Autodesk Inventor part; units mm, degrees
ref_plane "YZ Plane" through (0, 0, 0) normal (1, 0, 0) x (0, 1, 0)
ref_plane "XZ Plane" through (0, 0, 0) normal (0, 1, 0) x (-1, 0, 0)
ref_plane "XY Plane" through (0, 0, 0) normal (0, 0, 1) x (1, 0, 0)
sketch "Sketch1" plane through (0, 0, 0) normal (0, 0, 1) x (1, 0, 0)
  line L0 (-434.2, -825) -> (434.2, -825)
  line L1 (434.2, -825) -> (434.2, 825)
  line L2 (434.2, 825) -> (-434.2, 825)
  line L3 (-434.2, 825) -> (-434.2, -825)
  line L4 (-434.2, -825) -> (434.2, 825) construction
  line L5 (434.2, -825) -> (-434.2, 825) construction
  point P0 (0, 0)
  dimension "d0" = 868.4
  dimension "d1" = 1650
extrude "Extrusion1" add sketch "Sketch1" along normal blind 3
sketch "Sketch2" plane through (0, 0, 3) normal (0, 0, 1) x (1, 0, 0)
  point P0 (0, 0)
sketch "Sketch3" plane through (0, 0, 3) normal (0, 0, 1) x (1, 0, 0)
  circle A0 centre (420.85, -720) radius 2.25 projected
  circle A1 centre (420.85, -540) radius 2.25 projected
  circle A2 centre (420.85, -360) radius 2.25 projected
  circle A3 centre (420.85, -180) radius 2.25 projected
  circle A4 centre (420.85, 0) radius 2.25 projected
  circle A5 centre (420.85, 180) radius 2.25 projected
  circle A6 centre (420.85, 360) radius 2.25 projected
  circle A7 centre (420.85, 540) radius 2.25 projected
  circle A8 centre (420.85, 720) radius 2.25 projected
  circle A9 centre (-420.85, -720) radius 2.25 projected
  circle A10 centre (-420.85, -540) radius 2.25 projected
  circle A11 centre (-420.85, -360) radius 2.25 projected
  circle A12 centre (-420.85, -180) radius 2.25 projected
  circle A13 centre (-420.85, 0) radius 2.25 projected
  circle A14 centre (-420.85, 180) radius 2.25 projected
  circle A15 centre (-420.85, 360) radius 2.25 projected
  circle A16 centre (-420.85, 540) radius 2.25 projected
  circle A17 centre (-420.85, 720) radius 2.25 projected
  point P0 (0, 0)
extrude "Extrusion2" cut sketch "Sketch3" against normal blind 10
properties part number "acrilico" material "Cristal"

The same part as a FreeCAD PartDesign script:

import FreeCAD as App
import Part
import Sketcher
from FreeCAD import Vector


def add_polygon(sketch, points):
    """Adds a closed chain of lines whose ends are joined by coincident constraints."""
    first, n = sketch.GeometryCount, len(points)
    for a, b in zip(points, points[1:] + points[:1]):
        sketch.addGeometry(Part.LineSegment(App.Vector(*a, 0), App.Vector(*b, 0)), False)
    for i in range(n):
        sketch.addConstraint(Sketcher.Constraint("Coincident", first + i, 2, first + (i + 1) % n, 1))

doc = App.newDocument("Part")
body = doc.addObject("PartDesign::Body", "Body")

# Sketch on XY plane
sketch1 = doc.addObject("Sketcher::SketchObject", "Sketch")
body.addObject(sketch1)
sketch1.AttachmentSupport = (doc.XY_Plane, [""])
sketch1.MapMode = "FlatFace"
add_polygon(sketch1, [(-434, 825), (-434, -825), (434, -825), (434, 825)])  # lines 0-3
sketch1.addConstraint([
    Sketcher.Constraint("Vertical", 0),
    Sketcher.Constraint("Horizontal", 1),
    Sketcher.Constraint("Vertical", 2),
    Sketcher.Constraint("Horizontal", 3),
    Sketcher.Constraint("Symmetric", 0, 2, 2, 2, -1, 1),
    Sketcher.Constraint("DistanceY", 0, 2, 0, 1, 1650.0),
    Sketcher.Constraint("DistanceX", 1, 1, 1, 2, 868.4),
])
pad1 = doc.addObject("PartDesign::Pad", "Pad")
body.addObject(pad1)
pad1.Profile = sketch1
pad1.Length = 3

# Sketch on XY plane
sketch2 = doc.addObject("Sketcher::SketchObject", "Sketch001")
body.addObject(sketch2)
sketch2.AttachmentSupport = (doc.XY_Plane, [""])
sketch2.MapMode = "FlatFace"
sketch2.AttachmentOffset = App.Placement(Vector(0, 0, 3), App.Rotation())
sketch2.addGeometry([
    Part.Circle(Vector(420.9, -720, 0), Vector(0, 0, 1), 2.2),  # 0
    Part.Circle(Vector(420.9, -540, 0), Vector(0, 0, 1), 2.2),  # 1
    Part.Circle(Vector(420.9, -360, 0), Vector(0, 0, 1), 2.2),  # 2
    Part.Circle(Vector(420.9, -180, 0), Vector(0, 0, 1), 2.2),  # 3
    Part.Circle(Vector(420.9, 0, 0), Vector(0, 0, 1), 2.2),  # 4
    Part.Circle(Vector(420.9, 180, 0), Vector(0, 0, 1), 2.2),  # 5
    Part.Circle(Vector(420.9, 360, 0), Vector(0, 0, 1), 2.2),  # 6
    Part.Circle(Vector(420.9, 540, 0), Vector(0, 0, 1), 2.2),  # 7
    Part.Circle(Vector(420.9, 720, 0), Vector(0, 0, 1), 2.2),  # 8
    Part.Circle(Vector(-420.9, -720, 0), Vector(0, 0, 1), 2.2),  # 9
    Part.Circle(Vector(-420.9, -540, 0), Vector(0, 0, 1), 2.2),  # 10
    Part.Circle(Vector(-420.9, -360, 0), Vector(0, 0, 1), 2.2),  # 11
    Part.Circle(Vector(-420.9, -180, 0), Vector(0, 0, 1), 2.2),  # 12
    Part.Circle(Vector(-420.9, 0, 0), Vector(0, 0, 1), 2.2),  # 13
    Part.Circle(Vector(-420.9, 180, 0), Vector(0, 0, 1), 2.2),  # 14
    Part.Circle(Vector(-420.9, 360, 0), Vector(0, 0, 1), 2.2),  # 15
    Part.Circle(Vector(-420.9, 540, 0), Vector(0, 0, 1), 2.2),  # 16
    Part.Circle(Vector(-420.9, 720, 0), Vector(0, 0, 1), 2.2),  # 17
], False)
sketch2.addConstraint([
    Sketcher.Constraint("Equal", 0, 1),
    Sketcher.Constraint("Equal", 1, 2),
    Sketcher.Constraint("Equal", 2, 3),
    Sketcher.Constraint("Equal", 3, 4),
    Sketcher.Constraint("Equal", 4, 5),
    Sketcher.Constraint("Equal", 5, 6),
    Sketcher.Constraint("Equal", 6, 7),
    Sketcher.Constraint("Equal", 7, 8),
    Sketcher.Constraint("Equal", 8, 9),
    Sketcher.Constraint("Equal", 9, 10),
    Sketcher.Constraint("Equal", 10, 11),
    Sketcher.Constraint("Equal", 11, 12),
    Sketcher.Constraint("Equal", 12, 13),
    Sketcher.Constraint("Equal", 13, 14),
    Sketcher.Constraint("Equal", 14, 15),
    Sketcher.Constraint("Equal", 15, 16),
    Sketcher.Constraint("Equal", 16, 17),
    Sketcher.Constraint("Symmetric", 8, 3, 9, 3, -1, 1),
    Sketcher.Constraint("Symmetric", 7, 3, 10, 3, -1, 1),
    Sketcher.Constraint("Symmetric", 6, 3, 11, 3, -1, 1),
    Sketcher.Constraint("Symmetric", 5, 3, 12, 3, -1, 1),
    Sketcher.Constraint("Symmetric", 4, 3, 13, 3, -1, 1),
    Sketcher.Constraint("Symmetric", 3, 3, 14, 3, -1, 1),
    Sketcher.Constraint("Symmetric", 2, 3, 15, 3, -1, 1),
    Sketcher.Constraint("Symmetric", 1, 3, 16, 3, -1, 1),
    Sketcher.Constraint("Symmetric", 0, 3, 17, 3, -1, 1),
    Sketcher.Constraint("Symmetric", 0, 3, 9, 3, -2),
    Sketcher.Constraint("Symmetric", 1, 3, 10, 3, -2),
    Sketcher.Constraint("Symmetric", 2, 3, 11, 3, -2),
    Sketcher.Constraint("Symmetric", 3, 3, 12, 3, -2),
    Sketcher.Constraint("PointOnObject", 4, 3, -1),
    Sketcher.Constraint("Vertical", 0, 3, 1, 3),
    Sketcher.Constraint("Vertical", 1, 3, 2, 3),
    Sketcher.Constraint("Vertical", 2, 3, 3, 3),
    Sketcher.Constraint("Vertical", 3, 3, 4, 3),
    Sketcher.Constraint("Diameter", 0, 4.5),
    Sketcher.Constraint("DistanceY", 0, 3, -1, 1, 720.0),
    Sketcher.Constraint("DistanceY", 1, 3, -1, 1, 540.0),
    Sketcher.Constraint("DistanceY", 2, 3, -1, 1, 360.0),
    Sketcher.Constraint("DistanceY", 3, 3, -1, 1, 180.0),
    Sketcher.Constraint("DistanceX", 9, 3, 0, 3, 841.7),
])
pocket1 = doc.addObject("PartDesign::Pocket", "Pocket")
body.addObject(pocket1)
pocket1.Profile = sketch2
pocket1.Length = 10

doc.recompute()
